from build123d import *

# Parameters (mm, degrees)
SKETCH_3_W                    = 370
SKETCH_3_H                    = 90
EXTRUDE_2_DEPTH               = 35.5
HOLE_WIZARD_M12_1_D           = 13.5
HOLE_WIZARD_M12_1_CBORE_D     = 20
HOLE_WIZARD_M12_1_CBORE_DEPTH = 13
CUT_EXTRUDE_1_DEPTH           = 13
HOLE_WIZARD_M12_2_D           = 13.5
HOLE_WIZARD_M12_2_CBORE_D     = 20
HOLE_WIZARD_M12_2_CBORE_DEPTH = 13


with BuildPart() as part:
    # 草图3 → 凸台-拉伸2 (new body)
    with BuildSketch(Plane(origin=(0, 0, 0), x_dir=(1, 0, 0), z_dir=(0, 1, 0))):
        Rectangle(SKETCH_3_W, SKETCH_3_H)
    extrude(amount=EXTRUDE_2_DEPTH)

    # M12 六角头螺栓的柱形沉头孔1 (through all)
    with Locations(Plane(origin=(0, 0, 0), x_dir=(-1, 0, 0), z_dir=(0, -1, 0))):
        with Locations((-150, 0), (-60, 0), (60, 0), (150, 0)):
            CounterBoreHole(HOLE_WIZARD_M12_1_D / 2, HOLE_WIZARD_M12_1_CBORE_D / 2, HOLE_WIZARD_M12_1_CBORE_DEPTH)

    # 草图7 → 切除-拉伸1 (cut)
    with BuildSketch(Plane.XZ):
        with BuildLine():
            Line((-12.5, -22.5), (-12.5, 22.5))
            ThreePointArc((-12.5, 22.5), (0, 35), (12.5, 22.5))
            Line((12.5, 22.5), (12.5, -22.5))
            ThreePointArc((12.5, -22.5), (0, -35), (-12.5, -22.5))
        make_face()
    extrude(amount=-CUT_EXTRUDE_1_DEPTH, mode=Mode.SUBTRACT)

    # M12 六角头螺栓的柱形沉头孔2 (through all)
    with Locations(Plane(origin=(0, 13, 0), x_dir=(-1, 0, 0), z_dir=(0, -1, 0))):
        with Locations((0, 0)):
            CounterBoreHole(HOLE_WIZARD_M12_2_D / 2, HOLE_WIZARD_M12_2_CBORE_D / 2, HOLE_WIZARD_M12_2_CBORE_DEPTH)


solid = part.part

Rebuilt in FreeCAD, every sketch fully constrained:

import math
import FreeCAD as App
import Part
import Sketcher

V = App.Vector
Q = App.Units.Quantity


def add_polygon(sketch, points):
    """Adds a closed chain of lines whose ends are joined by coincident constraints."""
    first, n = sketch.GeometryCount, len(points)
    for a, b in zip(points, points[1:] + points[:1]):
        sketch.addGeometry(Part.LineSegment(App.Vector(*a, 0), App.Vector(*b, 0)), False)
    for i in range(n):
        sketch.addConstraint(Sketcher.Constraint("Coincident", first + i, 2, first + (i + 1) % n, 1))

doc = App.newDocument("Part")
body = doc.addObject("PartDesign::Body", "Body")

# Sketch on XZ plane
sketch1 = body.newObject("Sketcher::SketchObject", "Sketch")
sketch1.AttachmentSupport = (doc.getObject("XZ_Plane"), [""])
sketch1.MapMode = "FlatFace"
add_polygon(sketch1, [(-185, -45), (-185, 45), (185, 45), (185, -45)])  # lines 0-3
sketch1.addConstraint(Sketcher.Constraint("Vertical", 0))
sketch1.addConstraint(Sketcher.Constraint("Horizontal", 1))
sketch1.addConstraint(Sketcher.Constraint("Vertical", 2))
sketch1.addConstraint(Sketcher.Constraint("Horizontal", 3))
sketch1.addConstraint(Sketcher.Constraint("Symmetric", 0, 2, 2, 2, -1, 1))
sketch1.addConstraint(Sketcher.Constraint("DistanceX", 1, 1, 1, 2, Q("370 mm")))
sketch1.addConstraint(Sketcher.Constraint("DistanceY", 0, 1, 0, 2, Q("90 mm")))
pad1 = body.newObject("PartDesign::Pad", "Pad")
pad1.Profile = sketch1
pad1.Length = 35.5
pad1.Reversed = True

# Sketch on XZ plane
sketch2 = body.newObject("Sketcher::SketchObject", "Sketch001")
sketch2.AttachmentSupport = (doc.getObject("XZ_Plane"), [""])
sketch2.MapMode = "FlatFace"
sketch2.addGeometry(Part.Circle(V(150, 0, 0), V(0, 0, 1), 6.75), False)
sketch2.addGeometry(Part.Circle(V(60, 0, 0), V(0, 0, 1), 6.75), False)
sketch2.addGeometry(Part.Circle(V(-60, 0, 0), V(0, 0, 1), 6.75), False)
sketch2.addGeometry(Part.Circle(V(-150, 0, 0), V(0, 0, 1), 6.75), False)
sketch2.addConstraint(Sketcher.Constraint("Equal", 0, 1))
sketch2.addConstraint(Sketcher.Constraint("Equal", 1, 2))
sketch2.addConstraint(Sketcher.Constraint("Equal", 2, 3))
sketch2.addConstraint(Sketcher.Constraint("Symmetric", 1, 3, 2, 3, -1, 1))
sketch2.addConstraint(Sketcher.Constraint("Symmetric", 0, 3, 3, 3, -1, 1))
sketch2.addConstraint(Sketcher.Constraint("PointOnObject", 0, 3, -1))
sketch2.addConstraint(Sketcher.Constraint("PointOnObject", 1, 3, -1))
sketch2.addConstraint(Sketcher.Constraint("Diameter", 0, Q("13.5 mm")))
sketch2.addConstraint(Sketcher.Constraint("DistanceX", -1, 1, 0, 3, Q("150 mm")))
sketch2.addConstraint(Sketcher.Constraint("DistanceX", -1, 1, 1, 3, Q("60 mm")))
doc.recompute()
hole = body.newObject("PartDesign::Hole", "Hole")
hole.Profile = sketch2
hole.ThreadType = "None"
hole.Diameter = 13.5
hole.DepthType = "ThroughAll"
hole.HoleCutType = "Counterbore"
hole.HoleCutDiameter = 20
hole.HoleCutDepth = 13

# Sketch on XZ plane
sketch3 = body.newObject("Sketcher::SketchObject", "Sketch002")
sketch3.AttachmentSupport = (doc.getObject("XZ_Plane"), [""])
sketch3.MapMode = "FlatFace"
sketch3.addGeometry(Part.LineSegment(V(-12.5, 22.5, 0), V(-12.5, -22.5, 0)), False)
sketch3.addGeometry(Part.ArcOfCircle(Part.Circle(V(0, -22.5, 0), V(0, 0, 1), 12.5), math.radians(180), math.radians(360)), False)
sketch3.addGeometry(Part.LineSegment(V(12.5, -22.5, 0), V(12.5, 22.5, 0)), False)
sketch3.addGeometry(Part.ArcOfCircle(Part.Circle(V(0, 22.5, 0), V(0, 0, 1), 12.5), math.radians(0), math.radians(180)), False)
sketch3.addConstraint(Sketcher.Constraint("Tangent", 0, 2, 1, 1))
sketch3.addConstraint(Sketcher.Constraint("Tangent", 1, 2, 2, 1))
sketch3.addConstraint(Sketcher.Constraint("Tangent", 2, 2, 3, 1))
sketch3.addConstraint(Sketcher.Constraint("Tangent", 3, 2, 0, 1))
sketch3.addConstraint(Sketcher.Constraint("Vertical", 0))
sketch3.addConstraint(Sketcher.Constraint("Vertical", 2))
sketch3.addConstraint(Sketcher.Constraint("Symmetric", 1, 3, 3, 3, -1, 1))
sketch3.addConstraint(Sketcher.Constraint("Radius", 1, Q("12.5 mm")))
sketch3.addConstraint(Sketcher.Constraint("DistanceY", 0, 2, 0, 1, Q("45 mm")))
pocket1 = body.newObject("PartDesign::Pocket", "Pocket")
pocket1.Profile = sketch3
pocket1.Length = 13

# Sketch on XZ plane
sketch4 = body.newObject("Sketcher::SketchObject", "Sketch003")
sketch4.AttachmentSupport = (doc.getObject("XZ_Plane"), [""])
sketch4.MapMode = "FlatFace"
sketch4.AttachmentOffset = App.Placement(V(0, 0, -13), App.Rotation())
sketch4.addGeometry(Part.Circle(V(0, 0, 0), V(0, 0, 1), 6.75), False)
sketch4.addConstraint(Sketcher.Constraint("Coincident", 0, 3, -1, 1))
sketch4.addConstraint(Sketcher.Constraint("Diameter", 0, Q("13.5 mm")))
doc.recompute()
hole2 = body.newObject("PartDesign::Hole", "Hole001")
hole2.Profile = sketch4
hole2.ThreadType = "None"
hole2.Diameter = 13.5
hole2.DepthType = "ThroughAll"
hole2.HoleCutType = "Counterbore"
hole2.HoleCutDiameter = 20
hole2.HoleCutDepth = 13

doc.recompute()
